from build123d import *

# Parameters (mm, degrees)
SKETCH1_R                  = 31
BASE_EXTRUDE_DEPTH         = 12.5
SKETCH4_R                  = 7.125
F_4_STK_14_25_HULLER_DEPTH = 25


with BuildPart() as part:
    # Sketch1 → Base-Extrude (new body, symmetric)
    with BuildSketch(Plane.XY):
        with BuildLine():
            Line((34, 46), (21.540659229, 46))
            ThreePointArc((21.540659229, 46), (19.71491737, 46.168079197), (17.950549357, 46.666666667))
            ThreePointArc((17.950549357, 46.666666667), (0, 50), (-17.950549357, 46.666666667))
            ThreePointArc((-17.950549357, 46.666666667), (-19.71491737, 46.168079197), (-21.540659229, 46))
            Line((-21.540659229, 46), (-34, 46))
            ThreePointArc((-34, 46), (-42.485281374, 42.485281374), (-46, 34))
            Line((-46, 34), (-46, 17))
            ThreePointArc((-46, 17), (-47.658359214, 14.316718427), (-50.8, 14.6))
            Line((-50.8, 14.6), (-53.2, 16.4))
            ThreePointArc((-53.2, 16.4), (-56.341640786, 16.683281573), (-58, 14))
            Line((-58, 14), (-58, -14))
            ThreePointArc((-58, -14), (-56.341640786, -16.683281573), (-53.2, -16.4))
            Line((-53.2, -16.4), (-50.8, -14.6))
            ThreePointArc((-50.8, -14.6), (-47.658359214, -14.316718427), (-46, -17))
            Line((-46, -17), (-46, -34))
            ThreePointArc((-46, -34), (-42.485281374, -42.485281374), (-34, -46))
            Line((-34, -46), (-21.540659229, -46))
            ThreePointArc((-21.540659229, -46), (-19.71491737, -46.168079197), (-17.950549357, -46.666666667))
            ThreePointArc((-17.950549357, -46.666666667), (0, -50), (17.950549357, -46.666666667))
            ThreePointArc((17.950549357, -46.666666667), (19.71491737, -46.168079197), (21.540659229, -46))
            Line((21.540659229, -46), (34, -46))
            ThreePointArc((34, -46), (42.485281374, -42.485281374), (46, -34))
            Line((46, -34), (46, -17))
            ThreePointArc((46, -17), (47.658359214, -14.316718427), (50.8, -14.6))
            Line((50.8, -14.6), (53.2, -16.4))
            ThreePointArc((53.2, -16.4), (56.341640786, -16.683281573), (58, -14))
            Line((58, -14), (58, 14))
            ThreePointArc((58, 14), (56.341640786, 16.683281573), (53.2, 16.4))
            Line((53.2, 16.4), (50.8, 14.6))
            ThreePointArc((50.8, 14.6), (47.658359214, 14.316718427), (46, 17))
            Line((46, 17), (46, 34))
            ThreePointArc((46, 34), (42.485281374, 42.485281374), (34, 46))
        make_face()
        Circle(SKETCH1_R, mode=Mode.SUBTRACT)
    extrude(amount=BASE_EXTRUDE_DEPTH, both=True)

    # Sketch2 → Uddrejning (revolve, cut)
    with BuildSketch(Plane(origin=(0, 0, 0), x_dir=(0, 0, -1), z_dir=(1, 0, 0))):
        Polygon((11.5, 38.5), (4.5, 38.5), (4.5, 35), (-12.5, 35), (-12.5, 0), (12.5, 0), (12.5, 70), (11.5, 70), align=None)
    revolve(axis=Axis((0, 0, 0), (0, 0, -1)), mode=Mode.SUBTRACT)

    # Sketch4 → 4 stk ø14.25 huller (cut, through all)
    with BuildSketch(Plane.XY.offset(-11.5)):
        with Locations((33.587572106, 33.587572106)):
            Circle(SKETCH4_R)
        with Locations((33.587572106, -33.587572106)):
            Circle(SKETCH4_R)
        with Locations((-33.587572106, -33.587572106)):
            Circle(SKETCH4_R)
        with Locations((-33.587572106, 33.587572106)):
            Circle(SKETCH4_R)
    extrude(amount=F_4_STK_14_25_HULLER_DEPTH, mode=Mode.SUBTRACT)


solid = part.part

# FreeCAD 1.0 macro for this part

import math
import FreeCAD as App
import Part
import Sketcher
from FreeCAD import Vector


def add_polygon(sketch, points):
    """Adds a closed chain of lines whose ends are joined by coincident constraints."""
    first, n = sketch.GeometryCount, len(points)
    for a, b in zip(points, points[1:] + points[:1]):
        sketch.addGeometry(Part.LineSegment(App.Vector(*a, 0), App.Vector(*b, 0)), False)
    for i in range(n):
        sketch.addConstraint(Sketcher.Constraint("Coincident", first + i, 2, first + (i + 1) % n, 1))

doc = App.newDocument("Part")
params = doc.addObject("Spreadsheet::Sheet", "Params")
for row, (alias, value) in enumerate([
    ("sketch1_diameter", "62 mm"),
    ("sketch1_radius", "10 mm"),
    ("sketch1_radius2", "50 mm"),
    ("sketch1_radius3", "12 mm"),
    ("sketch1_radius4", "3 mm"),
    ("pad1_length", "25 mm"),
    ("sketch2_width", "35 mm"),
    ("sketch2_width2", "70 mm"),
    ("sketch2_height", "7 mm"),
    ("sketch2_height2", "17 mm"),
    ("sketch2_height3", "25 mm"),
    ("groove_angle", "360 deg"),
    ("sketch3_diameter", "14.25 mm"),
], start=1):
    params.set(f"A{row}", alias)
    params.set(f"B{row}", "=" + value)
    params.setAlias(f"B{row}", alias)

body = doc.addObject("PartDesign::Body", "Body")

sketch1 = body.newObject("Sketcher::SketchObject", "Sketch")
sketch1.AttachmentSupport = (doc.getObject("XY_Plane"), [""])
sketch1.MapMode = "FlatFace"
sketch1.addGeometry([
    Part.LineSegment(Vector(34, 46, 0), Vector(21.5, 46, 0)),
    Part.ArcOfCircle(Part.Circle(Vector(21.5, 56, 0), Vector(0, 0, 1), 10), math.radians(-111), math.radians(-90)),
    Part.ArcOfCircle(Part.Circle(Vector(0, 0, 0), Vector(0, 0, 1), 50), math.radians(69), math.radians(111)),
    Part.ArcOfCircle(Part.Circle(Vector(-21.5, 56, 0), Vector(0, 0, 1), 10), math.radians(-90), math.radians(-69)),
    Part.LineSegment(Vector(-21.5, 46, 0), Vector(-34, 46, 0)),
    Part.ArcOfCircle(Part.Circle(Vector(-34, 34, 0), Vector(0, 0, 1), 12), math.radians(90), math.radians(180)),
    Part.LineSegment(Vector(-46, 34, 0), Vector(-46, 17, 0)),
    Part.ArcOfCircle(Part.Circle(Vector(-49, 17, 0), Vector(0, 0, 1), 3), math.radians(-127), math.radians(0)),
    Part.LineSegment(Vector(-50.8, 14.6, 0), Vector(-53.2, 16.4, 0)),
    Part.ArcOfCircle(Part.Circle(Vector(-55, 14, 0), Vector(0, 0, 1), 3), math.radians(53), math.radians(180)),
    Part.LineSegment(Vector(-58, 14, 0), Vector(-58, -14, 0)),
    Part.ArcOfCircle(Part.Circle(Vector(-55, -14, 0), Vector(0, 0, 1), 3), math.radians(180), math.radians(307)),
    Part.LineSegment(Vector(-53.2, -16.4, 0), Vector(-50.8, -14.6, 0)),
    Part.ArcOfCircle(Part.Circle(Vector(-49, -17, 0), Vector(0, 0, 1), 3), math.radians(0), math.radians(127)),
    Part.LineSegment(Vector(-46, -17, 0), Vector(-46, -34, 0)),
    Part.ArcOfCircle(Part.Circle(Vector(-34, -34, 0), Vector(0, 0, 1), 12), math.radians(-180), math.radians(-90)),
    Part.LineSegment(Vector(-34, -46, 0), Vector(-21.5, -46, 0)),
    Part.ArcOfCircle(Part.Circle(Vector(-21.5, -56, 0), Vector(0, 0, 1), 10), math.radians(69), math.radians(90)),
    Part.ArcOfCircle(Part.Circle(Vector(0, 0, 0), Vector(0, 0, 1), 50), math.radians(-111), math.radians(-69)),
    Part.ArcOfCircle(Part.Circle(Vector(21.5, -56, 0), Vector(0, 0, 1), 10), math.radians(90), math.radians(111)),
    Part.LineSegment(Vector(21.5, -46, 0), Vector(34, -46, 0)),
    Part.ArcOfCircle(Part.Circle(Vector(34, -34, 0), Vector(0, 0, 1), 12), math.radians(-90), math.radians(0)),
    Part.LineSegment(Vector(46, -34, 0), Vector(46, -17, 0)),
    Part.ArcOfCircle(Part.Circle(Vector(49, -17, 0), Vector(0, 0, 1), 3), math.radians(53), math.radians(180)),
    Part.LineSegment(Vector(50.8, -14.6, 0), Vector(53.2, -16.4, 0)),
    Part.ArcOfCircle(Part.Circle(Vector(55, -14, 0), Vector(0, 0, 1), 3), math.radians(-127), math.radians(0)),
    Part.LineSegment(Vector(58, -14, 0), Vector(58, 14, 0)),
    Part.ArcOfCircle(Part.Circle(Vector(55, 14, 0), Vector(0, 0, 1), 3), math.radians(0), math.radians(127)),
    Part.LineSegment(Vector(53.2, 16.4, 0), Vector(50.8, 14.6, 0)),
    Part.ArcOfCircle(Part.Circle(Vector(49, 17, 0), Vector(0, 0, 1), 3), math.radians(180), math.radians(307)),
    Part.LineSegment(Vector(46, 17, 0), Vector(46, 34, 0)),
    Part.ArcOfCircle(Part.Circle(Vector(34, 34, 0), Vector(0, 0, 1), 12), math.radians(0), math.radians(90)),
    Part.Circle(Vector(0, 0, 0), Vector(0, 0, 1), 31),
], False)
sketch1.addConstraint([
    Sketcher.Constraint("Tangent", 0, 2, 1, 2),
    Sketcher.Constraint("Tangent", 1, 1, 2, 1),
    Sketcher.Constraint("Tangent", 2, 2, 3, 2),
    Sketcher.Constraint("Tangent", 3, 1, 4, 1),
    Sketcher.Constraint("Tangent", 4, 2, 5, 1),
    Sketcher.Constraint("Tangent", 5, 2, 6, 1),
    Sketcher.Constraint("Tangent", 6, 2, 7, 2),
    Sketcher.Constraint("Tangent", 7, 1, 8, 1),
    Sketcher.Constraint("Tangent", 8, 2, 9, 1),
    Sketcher.Constraint("Tangent", 9, 2, 10, 1),
    Sketcher.Constraint("Tangent", 10, 2, 11, 1),
    Sketcher.Constraint("Tangent", 11, 2, 12, 1),
    Sketcher.Constraint("Tangent", 12, 2, 13, 2),
    Sketcher.Constraint("Tangent", 13, 1, 14, 1),
    Sketcher.Constraint("Tangent", 14, 2, 15, 1),
    Sketcher.Constraint("Tangent", 15, 2, 16, 1),
    Sketcher.Constraint("Tangent", 16, 2, 17, 2),
    Sketcher.Constraint("Tangent", 17, 1, 18, 1),
    Sketcher.Constraint("Tangent", 18, 2, 19, 2),
    Sketcher.Constraint("Tangent", 19, 1, 20, 1),
    Sketcher.Constraint("Tangent", 20, 2, 21, 1),
    Sketcher.Constraint("Tangent", 21, 2, 22, 1),
    Sketcher.Constraint("Tangent", 22, 2, 23, 2),
    Sketcher.Constraint("Tangent", 23, 1, 24, 1),
    Sketcher.Constraint("Tangent", 24, 2, 25, 1),
    Sketcher.Constraint("Tangent", 25, 2, 26, 1),
    Sketcher.Constraint("Tangent", 26, 2, 27, 1),
    Sketcher.Constraint("Tangent", 27, 2, 28, 1),
    Sketcher.Constraint("Tangent", 28, 2, 29, 2),
    Sketcher.Constraint("Tangent", 29, 1, 30, 1),
    Sketcher.Constraint("Tangent", 30, 2, 31, 1),
    Sketcher.Constraint("Tangent", 31, 2, 0, 1),
    Sketcher.Constraint("Horizontal", 0),
    Sketcher.Constraint("Horizontal", 4),
    Sketcher.Constraint("Vertical", 6),
    Sketcher.Constraint("Vertical", 10),
    Sketcher.Constraint("Vertical", 14),
    Sketcher.Constraint("Horizontal", 16),
    Sketcher.Constraint("Horizontal", 20),
    Sketcher.Constraint("Vertical", 22),
    Sketcher.Constraint("Vertical", 26),
    Sketcher.Constraint("Vertical", 30),
    Sketcher.Constraint("Coincident", 2, 3, -1, 1),
    Sketcher.Constraint("Coincident", 18, 3, -1, 1),
    Sketcher.Constraint("Coincident", 32, 3, -1, 1),
    Sketcher.Constraint("Equal", 1, 3),
    Sketcher.Constraint("Equal", 7, 9),
    Sketcher.Constraint("Equal", 9, 11),
    Sketcher.Constraint("Equal", 11, 13),
    Sketcher.Constraint("Equal", 5, 15),
    Sketcher.Constraint("Equal", 3, 17),
    Sketcher.Constraint("Equal", 2, 18),
    Sketcher.Constraint("Equal", 17, 19),
    Sketcher.Constraint("Equal", 15, 21),
    Sketcher.Constraint("Equal", 13, 23),
    Sketcher.Constraint("Equal", 23, 25),
    Sketcher.Constraint("Equal", 25, 27),
    Sketcher.Constraint("Equal", 27, 29),
    Sketcher.Constraint("Equal", 21, 31),
    Sketcher.Constraint("Symmetric", 5, 3, 21, 3, -1, 1),
    Sketcher.Constraint("Symmetric", 9, 3, 25, 3, -1, 1),
    Sketcher.Constraint("Symmetric", 13, 3, 29, 3, -1, 1),
    Sketcher.Constraint("Symmetric", 15, 3, 21, 3, -2),
    Sketcher.Constraint("Symmetric", 12, 2, 23, 1, -2),
    Sketcher.Constraint("Symmetric", 8, 2, 27, 2, -2),
    Sketcher.Constraint("Horizontal", 1, 3, 3, 3),
    Sketcher.Constraint("Diameter", 32, 62.0),
    Sketcher.Constraint("Radius", 1, 10.0),
    Sketcher.Constraint("Radius", 2, 50.0),
    Sketcher.Constraint("Radius", 5, 12.0),
    Sketcher.Constraint("Radius", 7, 3.0),
    Sketcher.Constraint("DistanceY", 6, 2, 6, 1, 17.0),
    Sketcher.Constraint("DistanceY", 10, 2, 10, 1, 28.0),
    Sketcher.Constraint("Distance", 8, 3.0),
    Sketcher.Constraint("DistanceY", -1, 1, 1, 3, 56.0),
    Sketcher.Constraint("DistanceX", 5, 3, -1, 1, 34.0),
])
sketch1.setExpression("Constraints[66]", "Params.sketch1_diameter")
sketch1.setExpression("Constraints[67]", "Params.sketch1_radius")
sketch1.setExpression("Constraints[68]", "Params.sketch1_radius2")
sketch1.setExpression("Constraints[69]", "Params.sketch1_radius3")
sketch1.setExpression("Constraints[70]", "Params.sketch1_radius4")
pad1 = body.newObject("PartDesign::Pad", "Pad")
pad1.Profile = sketch1
pad1.setExpression("Length", "Params.pad1_length")
pad1.Midplane = True

sketch2 = body.newObject("Sketcher::SketchObject", "Sketch001")
sketch2.AttachmentSupport = (doc.getObject("YZ_Plane"), [""])
sketch2.MapMode = "FlatFace"
add_polygon(sketch2, [(38.5, -11.5), (38.5, -4.5), (35, -4.5), (35, 12.5), (0, 12.5), (0, -12.5), (70, -12.5), (70, -11.5)])
sketch2.addConstraint([
    Sketcher.Constraint("Vertical", 0),
    Sketcher.Constraint("Horizontal", 1),
    Sketcher.Constraint("Vertical", 2),
    Sketcher.Constraint("Horizontal", 3),
    Sketcher.Constraint("Vertical", 4),
    Sketcher.Constraint("Horizontal", 5),
    Sketcher.Constraint("Vertical", 6),
    Sketcher.Constraint("Horizontal", 7),
    Sketcher.Constraint("Symmetric", 3, 2, 4, 2, -1, 1),
    Sketcher.Constraint("DistanceX", 3, 2, 3, 1, 35.0),
    Sketcher.Constraint("DistanceX", 5, 1, 5, 2, 70.0),
    Sketcher.Constraint("DistanceY", 0, 1, 0, 2, 7.0),
    Sketcher.Constraint("DistanceY", 2, 1, 2, 2, 17.0),
    Sketcher.Constraint("DistanceY", 4, 2, 4, 1, 25.0),
    Sketcher.Constraint("DistanceX", 1, 2, 1, 1, 3.5),
])
sketch2.setExpression("Constraints[17]", "Params.sketch2_width")
sketch2.setExpression("Constraints[18]", "Params.sketch2_width2")
sketch2.setExpression("Constraints[19]", "Params.sketch2_height")
sketch2.setExpression("Constraints[20]", "Params.sketch2_height2")
sketch2.setExpression("Constraints[21]", "Params.sketch2_height3")
groove = body.newObject("PartDesign::Groove", "Groove")
groove.Profile = sketch2
groove.ReferenceAxis = (sketch2, ["V_Axis"])
groove.setExpression("Angle", "Params.groove_angle")

sketch3 = body.newObject("Sketcher::SketchObject", "Sketch002")
sketch3.AttachmentSupport = (doc.getObject("XY_Plane"), [""])
sketch3.MapMode = "FlatFace"
sketch3.AttachmentOffset = App.Placement(Vector(0, 0, -11.5), App.Rotation())
sketch3.addGeometry([
    Part.Circle(Vector(34, 34, 0), Vector(0, 0, 1), 7),
    Part.Circle(Vector(34, -34, 0), Vector(0, 0, 1), 7),
    Part.Circle(Vector(-34, -34, 0), Vector(0, 0, 1), 7),
    Part.Circle(Vector(-34, 34, 0), Vector(0, 0, 1), 7),
], False)
sketch3.addConstraint([
    Sketcher.Constraint("Equal", 0, 1),
    Sketcher.Constraint("Equal", 1, 2),
    Sketcher.Constraint("Equal", 2, 3),
    Sketcher.Constraint("Symmetric", 0, 3, 2, 3, -1, 1),
    Sketcher.Constraint("Symmetric", 1, 3, 3, 3, -1, 1),
    Sketcher.Constraint("Symmetric", 1, 3, 2, 3, -2),
    Sketcher.Constraint("Diameter", 0, 14.25),
    Sketcher.Constraint("DistanceX", -1, 1, 0, 3, 33.587572),
    Sketcher.Constraint("DistanceY", -1, 1, 0, 3, 33.587572),
])
sketch3.setExpression("Constraints[6]", "Params.sketch3_diameter")
pocket1 = body.newObject("PartDesign::Pocket", "Pocket")
pocket1.Profile = sketch3
pocket1.Type = "ThroughAll"
pocket1.Reversed = True

doc.recompute()
